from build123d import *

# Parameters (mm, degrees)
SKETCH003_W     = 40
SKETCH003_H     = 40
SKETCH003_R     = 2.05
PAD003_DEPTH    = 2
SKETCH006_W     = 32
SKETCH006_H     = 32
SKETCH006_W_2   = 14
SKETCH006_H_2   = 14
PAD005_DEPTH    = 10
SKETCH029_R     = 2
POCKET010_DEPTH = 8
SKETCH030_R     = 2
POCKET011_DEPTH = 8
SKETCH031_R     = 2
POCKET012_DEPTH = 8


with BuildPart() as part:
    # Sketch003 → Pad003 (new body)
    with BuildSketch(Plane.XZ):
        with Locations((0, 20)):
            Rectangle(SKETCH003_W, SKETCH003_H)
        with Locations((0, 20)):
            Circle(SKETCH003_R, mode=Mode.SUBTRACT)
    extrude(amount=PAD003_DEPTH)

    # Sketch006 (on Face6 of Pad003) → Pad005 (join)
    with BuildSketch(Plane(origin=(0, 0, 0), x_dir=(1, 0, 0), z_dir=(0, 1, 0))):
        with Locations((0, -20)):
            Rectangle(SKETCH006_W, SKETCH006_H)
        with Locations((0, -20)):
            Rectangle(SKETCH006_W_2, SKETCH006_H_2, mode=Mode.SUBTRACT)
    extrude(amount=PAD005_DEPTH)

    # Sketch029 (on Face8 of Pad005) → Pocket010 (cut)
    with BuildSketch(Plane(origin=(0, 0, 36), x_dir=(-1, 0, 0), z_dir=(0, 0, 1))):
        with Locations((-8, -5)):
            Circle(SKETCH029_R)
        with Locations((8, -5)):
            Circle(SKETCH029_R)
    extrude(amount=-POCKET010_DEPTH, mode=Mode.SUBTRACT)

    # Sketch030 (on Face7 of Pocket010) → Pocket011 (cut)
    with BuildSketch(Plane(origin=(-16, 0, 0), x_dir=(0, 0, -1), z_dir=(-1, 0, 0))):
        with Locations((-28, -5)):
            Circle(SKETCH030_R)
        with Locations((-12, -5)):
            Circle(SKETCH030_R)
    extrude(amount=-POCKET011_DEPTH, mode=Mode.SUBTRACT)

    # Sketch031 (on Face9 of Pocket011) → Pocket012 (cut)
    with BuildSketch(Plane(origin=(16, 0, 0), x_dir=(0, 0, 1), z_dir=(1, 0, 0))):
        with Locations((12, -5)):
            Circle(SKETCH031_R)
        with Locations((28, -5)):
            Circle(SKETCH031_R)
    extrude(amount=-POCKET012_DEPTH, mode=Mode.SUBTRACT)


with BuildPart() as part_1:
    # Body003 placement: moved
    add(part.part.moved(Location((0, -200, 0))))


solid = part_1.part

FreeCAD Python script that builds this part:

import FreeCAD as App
import Part
import Sketcher
Q = App.Units.Quantity

doc = App.newDocument("Part")
body = doc.addObject("PartDesign::Body", "Body")

# Sketch on XZ plane
sketch1 = doc.addObject("Sketcher::SketchObject", "Sketch")
body.addObject(sketch1)
sketch1.AttachmentSupport = (doc.XZ_Plane, [""])
sketch1.MapMode = "FlatFace"
sketch1.addGeometry(Part.LineSegment(App.Vector(-20, 40, 0), App.Vector(-20, 0, 0)), False)
sketch1.addGeometry(Part.LineSegment(App.Vector(-20, 0, 0), App.Vector(20, 0, 0)), False)
sketch1.addGeometry(Part.LineSegment(App.Vector(20, 0, 0), App.Vector(20, 40, 0)), False)
sketch1.addGeometry(Part.LineSegment(App.Vector(20, 40, 0), App.Vector(-20, 40, 0)), False)
sketch1.addGeometry(Part.Circle(App.Vector(0, 20, 0), App.Vector(0, 0, 1), 2), False)
sketch1.addConstraint(Sketcher.Constraint("Coincident", 0, 2, 1, 1))
sketch1.addConstraint(Sketcher.Constraint("Coincident", 1, 2, 2, 1))
sketch1.addConstraint(Sketcher.Constraint("Coincident", 2, 2, 3, 1))
sketch1.addConstraint(Sketcher.Constraint("Coincident", 3, 2, 0, 1))
sketch1.addConstraint(Sketcher.Constraint("Vertical", 0))
sketch1.addConstraint(Sketcher.Constraint("Horizontal", 1))
sketch1.addConstraint(Sketcher.Constraint("Vertical", 2))
sketch1.addConstraint(Sketcher.Constraint("Horizontal", 3))
sketch1.addConstraint(Sketcher.Constraint("Symmetric", 0, 2, 1, 2, -1, 1))
sketch1.addConstraint(Sketcher.Constraint("PointOnObject", 4, 3, -2))
sketch1.addConstraint(Sketcher.Constraint("Equal", 3, 0))
sketch1.addConstraint(Sketcher.Constraint("Diameter", 4, Q("4.1 mm")))
sketch1.addConstraint(Sketcher.Constraint("DistanceX", 1, 1, 1, 2, Q("40 mm")))
sketch1.addConstraint(Sketcher.Constraint("DistanceY", -1, 1, 4, 3, Q("20 mm")))
pad1 = doc.addObject("PartDesign::Pad", "Pad")
body.addObject(pad1)
pad1.Profile = sketch1
pad1.Length = 2

# Sketch on XZ plane
sketch2 = doc.addObject("Sketcher::SketchObject", "Sketch001")
body.addObject(sketch2)
sketch2.AttachmentSupport = (doc.XZ_Plane, [""])
sketch2.MapMode = "FlatFace"
sketch2.addGeometry(Part.LineSegment(App.Vector(-16, 4, 0), App.Vector(-16, 36, 0)), False)
sketch2.addGeometry(Part.LineSegment(App.Vector(-16, 36, 0), App.Vector(16, 36, 0)), False)
sketch2.addGeometry(Part.LineSegment(App.Vector(16, 36, 0), App.Vector(16, 4, 0)), False)
sketch2.addGeometry(Part.LineSegment(App.Vector(16, 4, 0), App.Vector(-16, 4, 0)), False)
sketch2.addGeometry(Part.LineSegment(App.Vector(7, 27, 0), App.Vector(-7, 27, 0)), False)
sketch2.addGeometry(Part.LineSegment(App.Vector(-7, 27, 0), App.Vector(-7, 13, 0)), False)
sketch2.addGeometry(Part.LineSegment(App.Vector(-7, 13, 0), App.Vector(7, 13, 0)), False)
sketch2.addGeometry(Part.LineSegment(App.Vector(7, 13, 0), App.Vector(7, 27, 0)), False)
sketch2.addConstraint(Sketcher.Constraint("Coincident", 0, 2, 1, 1))
sketch2.addConstraint(Sketcher.Constraint("Coincident", 1, 2, 2, 1))
sketch2.addConstraint(Sketcher.Constraint("Coincident", 2, 2, 3, 1))
sketch2.addConstraint(Sketcher.Constraint("Coincident", 3, 2, 0, 1))
sketch2.addConstraint(Sketcher.Constraint("Coincident", 4, 2, 5, 1))
sketch2.addConstraint(Sketcher.Constraint("Coincident", 5, 2, 6, 1))
sketch2.addConstraint(Sketcher.Constraint("Coincident", 6, 2, 7, 1))
sketch2.addConstraint(Sketcher.Constraint("Coincident", 7, 2, 4, 1))
sketch2.addConstraint(Sketcher.Constraint("Vertical", 0))
sketch2.addConstraint(Sketcher.Constraint("Horizontal", 1))
sketch2.addConstraint(Sketcher.Constraint("Vertical", 2))
sketch2.addConstraint(Sketcher.Constraint("Horizontal", 3))
sketch2.addConstraint(Sketcher.Constraint("Horizontal", 4))
sketch2.addConstraint(Sketcher.Constraint("Vertical", 5))
sketch2.addConstraint(Sketcher.Constraint("Horizontal", 6))
sketch2.addConstraint(Sketcher.Constraint("Vertical", 7))
sketch2.addConstraint(Sketcher.Constraint("Equal", 3, 0))
sketch2.addConstraint(Sketcher.Constraint("Equal", 6, 5))
sketch2.addConstraint(Sketcher.Constraint("DistanceX", 1, 1, 1, 2, Q("32 mm")))
sketch2.addConstraint(Sketcher.Constraint("DistanceX", 4, 2, 4, 1, Q("14 mm")))
sketch2.addConstraint(Sketcher.Constraint("DistanceX", 0, 2, -1, 1, Q("16 mm")))
sketch2.addConstraint(Sketcher.Constraint("DistanceY", -1, 1, 0, 2, Q("36 mm")))
sketch2.addConstraint(Sketcher.Constraint("DistanceX", 4, 2, -1, 1, Q("7 mm")))
sketch2.addConstraint(Sketcher.Constraint("DistanceY", -1, 1, 4, 2, Q("27 mm")))
pad2 = doc.addObject("PartDesign::Pad", "Pad001")
body.addObject(pad2)
pad2.Profile = sketch2
pad2.Length = 10
pad2.Reversed = True

# Sketch on XY plane
sketch3 = doc.addObject("Sketcher::SketchObject", "Sketch002")
body.addObject(sketch3)
sketch3.AttachmentSupport = (doc.XY_Plane, [""])
sketch3.MapMode = "FlatFace"
sketch3.AttachmentOffset = App.Placement(App.Vector(0, 0, 36), App.Rotation())
sketch3.addGeometry(Part.Circle(App.Vector(8, 5, 0), App.Vector(0, 0, 1), 2), False)
sketch3.addGeometry(Part.Circle(App.Vector(-8, 5, 0), App.Vector(0, 0, 1), 2), False)
sketch3.addConstraint(Sketcher.Constraint("Equal", 0, 1))
sketch3.addConstraint(Sketcher.Constraint("Symmetric", 0, 3, 1, 3, -2))
sketch3.addConstraint(Sketcher.Constraint("Diameter", 0, Q("4 mm")))
sketch3.addConstraint(Sketcher.Constraint("DistanceX", -1, 1, 0, 3, Q("8 mm")))
sketch3.addConstraint(Sketcher.Constraint("DistanceY", -1, 1, 0, 3, Q("5 mm")))
pocket1 = doc.addObject("PartDesign::Pocket", "Pocket")
body.addObject(pocket1)
pocket1.Profile = sketch3
pocket1.Length = 8

# Sketch on YZ plane
sketch4 = doc.addObject("Sketcher::SketchObject", "Sketch003")
body.addObject(sketch4)
sketch4.AttachmentSupport = (doc.YZ_Plane, [""])
sketch4.MapMode = "FlatFace"
sketch4.AttachmentOffset = App.Placement(App.Vector(0, 0, -16), App.Rotation())
sketch4.addGeometry(Part.Circle(App.Vector(5, 28, 0), App.Vector(0, 0, 1), 2), False)
sketch4.addGeometry(Part.Circle(App.Vector(5, 12, 0), App.Vector(0, 0, 1), 2), False)
sketch4.addConstraint(Sketcher.Constraint("Equal", 0, 1))
sketch4.addConstraint(Sketcher.Constraint("Vertical", 0, 3, 1, 3))
sketch4.addConstraint(Sketcher.Constraint("Diameter", 0, Q("4 mm")))
sketch4.addConstraint(Sketcher.Constraint("DistanceX", -1, 1, 0, 3, Q("5 mm")))
sketch4.addConstraint(Sketcher.Constraint("DistanceY", -1, 1, 0, 3, Q("28 mm")))
sketch4.addConstraint(Sketcher.Constraint("DistanceY", -1, 1, 1, 3, Q("12 mm")))
pocket2 = doc.addObject("PartDesign::Pocket", "Pocket001")
body.addObject(pocket2)
pocket2.Profile = sketch4
pocket2.Length = 8
pocket2.Reversed = True

# Sketch on YZ plane
sketch5 = doc.addObject("Sketcher::SketchObject", "Sketch004")
body.addObject(sketch5)
sketch5.AttachmentSupport = (doc.YZ_Plane, [""])
sketch5.MapMode = "FlatFace"
sketch5.AttachmentOffset = App.Placement(App.Vector(0, 0, 16), App.Rotation())
sketch5.addGeometry(Part.Circle(App.Vector(5, 12, 0), App.Vector(0, 0, 1), 2), False)
sketch5.addGeometry(Part.Circle(App.Vector(5, 28, 0), App.Vector(0, 0, 1), 2), False)
sketch5.addConstraint(Sketcher.Constraint("Equal", 0, 1))
sketch5.addConstraint(Sketcher.Constraint("Vertical", 0, 3, 1, 3))
sketch5.addConstraint(Sketcher.Constraint("Diameter", 0, Q("4 mm")))
sketch5.addConstraint(Sketcher.Constraint("DistanceX", -1, 1, 0, 3, Q("5 mm")))
sketch5.addConstraint(Sketcher.Constraint("DistanceY", -1, 1, 0, 3, Q("12 mm")))
sketch5.addConstraint(Sketcher.Constraint("DistanceY", -1, 1, 1, 3, Q("28 mm")))
pocket3 = doc.addObject("PartDesign::Pocket", "Pocket002")
body.addObject(pocket3)
pocket3.Profile = sketch5
pocket3.Length = 8
body2 = doc.addObject("PartDesign::Body", "Body001")
doc.recompute()

body.Placement = App.Placement(App.Vector(0, -200, 0), App.Rotation(App.Vector(0, 0, 1), 0))
boolean = doc.addObject("PartDesign::Boolean", "Boolean")
body2.addObject(boolean)
boolean.Type = "Fuse"
boolean.addObjects([body])

doc.recompute()
